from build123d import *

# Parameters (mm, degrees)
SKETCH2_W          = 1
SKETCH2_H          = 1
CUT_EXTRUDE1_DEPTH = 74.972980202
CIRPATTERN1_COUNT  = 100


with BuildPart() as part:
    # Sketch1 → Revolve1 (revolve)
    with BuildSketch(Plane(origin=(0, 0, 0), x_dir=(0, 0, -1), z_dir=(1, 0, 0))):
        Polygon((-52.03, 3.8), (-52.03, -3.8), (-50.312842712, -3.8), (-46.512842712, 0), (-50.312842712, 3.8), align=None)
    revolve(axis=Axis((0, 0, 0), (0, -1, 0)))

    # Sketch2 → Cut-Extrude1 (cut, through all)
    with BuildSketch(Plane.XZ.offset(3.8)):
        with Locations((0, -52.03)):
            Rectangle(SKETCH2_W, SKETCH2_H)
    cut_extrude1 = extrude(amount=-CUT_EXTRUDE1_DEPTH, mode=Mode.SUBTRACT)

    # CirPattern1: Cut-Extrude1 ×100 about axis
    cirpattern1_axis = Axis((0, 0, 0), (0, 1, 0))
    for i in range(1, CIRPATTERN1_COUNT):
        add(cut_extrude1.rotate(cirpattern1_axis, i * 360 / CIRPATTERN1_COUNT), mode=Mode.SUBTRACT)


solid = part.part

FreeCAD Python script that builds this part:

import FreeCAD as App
import Part
import Sketcher

doc = App.newDocument("Part")
body = doc.addObject("PartDesign::Body", "Body")

sketch1 = body.newObject("Sketcher::SketchObject", "Sketch")
sketch1.AttachmentSupport = (doc.getObject("YZ_Plane"), [""])
sketch1.MapMode = "FlatFace"
sketch1.addGeometry(Part.LineSegment(App.Vector(3.8, 52.03, 0), App.Vector(-3.8, 52.03, 0)), False)
sketch1.addGeometry(Part.LineSegment(App.Vector(-3.8, 52.03, 0), App.Vector(-3.8, 50.312843, 0)), False)
sketch1.addGeometry(Part.LineSegment(App.Vector(-3.8, 50.312843, 0), App.Vector(0, 46.512843, 0)), False)
sketch1.addGeometry(Part.LineSegment(App.Vector(0, 46.512843, 0), App.Vector(3.8, 50.312843, 0)), False)
sketch1.addGeometry(Part.LineSegment(App.Vector(3.8, 50.312843, 0), App.Vector(3.8, 52.03, 0)), False)
sketch1.addConstraint(Sketcher.Constraint("Coincident", 0, 2, 1, 1))
sketch1.addConstraint(Sketcher.Constraint("Coincident", 1, 2, 2, 1))
sketch1.addConstraint(Sketcher.Constraint("Coincident", 2, 2, 3, 1))
sketch1.addConstraint(Sketcher.Constraint("Coincident", 3, 2, 4, 1))
sketch1.addConstraint(Sketcher.Constraint("Coincident", 4, 2, 0, 1))
sketch1.addConstraint(Sketcher.Constraint("Horizontal", 0))
sketch1.addConstraint(Sketcher.Constraint("Vertical", 1))
sketch1.addConstraint(Sketcher.Constraint("Vertical", 4))
sketch1.addConstraint(Sketcher.Constraint("Symmetric", 1, 2, 3, 2, -2))
sketch1.addConstraint(Sketcher.Constraint("PointOnObject", 2, 2, -2))
sketch1.addConstraint(Sketcher.Constraint("Perpendicular", 2, 3))
sketch1.addConstraint(Sketcher.Constraint("DistanceX", 0, 2, 0, 1, 7.6))
sketch1.addConstraint(Sketcher.Constraint("DistanceY", -1, 1, 0, 2, 52.03))
sketch1.addConstraint(Sketcher.Constraint("DistanceY", 1, 2, 1, 1, 1.717157))
revolution = body.newObject("PartDesign::Revolution", "Revolution")
revolution.Profile = sketch1
revolution.ReferenceAxis = (sketch1, ["H_Axis"])
revolution.Angle = 360

sketch2 = body.newObject("Sketcher::SketchObject", "Sketch001")
sketch2.AttachmentSupport = (doc.getObject("XZ_Plane"), [""])
sketch2.MapMode = "FlatFace"
sketch2.AttachmentOffset = App.Placement(App.Vector(0, 0, 3.8), App.Rotation())
sketch2.addGeometry(Part.LineSegment(App.Vector(-0.5, -51.53, 0), App.Vector(-0.5, -52.53, 0)), False)
sketch2.addGeometry(Part.LineSegment(App.Vector(-0.5, -52.53, 0), App.Vector(0.5, -52.53, 0)), False)
sketch2.addGeometry(Part.LineSegment(App.Vector(0.5, -52.53, 0), App.Vector(0.5, -51.53, 0)), False)
sketch2.addGeometry(Part.LineSegment(App.Vector(0.5, -51.53, 0), App.Vector(-0.5, -51.53, 0)), False)
sketch2.addConstraint(Sketcher.Constraint("Coincident", 0, 2, 1, 1))
sketch2.addConstraint(Sketcher.Constraint("Coincident", 1, 2, 2, 1))
sketch2.addConstraint(Sketcher.Constraint("Coincident", 2, 2, 3, 1))
sketch2.addConstraint(Sketcher.Constraint("Coincident", 3, 2, 0, 1))
sketch2.addConstraint(Sketcher.Constraint("Vertical", 0))
sketch2.addConstraint(Sketcher.Constraint("Horizontal", 1))
sketch2.addConstraint(Sketcher.Constraint("Vertical", 2))
sketch2.addConstraint(Sketcher.Constraint("Horizontal", 3))
sketch2.addConstraint(Sketcher.Constraint("Equal", 3, 0))
sketch2.addConstraint(Sketcher.Constraint("DistanceX", 1, 1, 1, 2, 1.0))
sketch2.addConstraint(Sketcher.Constraint("DistanceX", 0, 2, -1, 1, 0.5))
sketch2.addConstraint(Sketcher.Constraint("DistanceY", 0, 2, -1, 1, 52.53))
pocket1 = body.newObject("PartDesign::Pocket", "Pocket")
pocket1.Profile = sketch2
pocket1.Type = "ThroughAll"
doc.recompute()

polarpattern = body.newObject("PartDesign::PolarPattern", "PolarPattern")
polarpattern.Originals = [pocket1]
polarpattern.Axis = (doc.getObject("Y_Axis"), [""])
polarpattern.Angle = 360
polarpattern.Occurrences = 100
body.Tip = polarpattern

doc.recompute()
